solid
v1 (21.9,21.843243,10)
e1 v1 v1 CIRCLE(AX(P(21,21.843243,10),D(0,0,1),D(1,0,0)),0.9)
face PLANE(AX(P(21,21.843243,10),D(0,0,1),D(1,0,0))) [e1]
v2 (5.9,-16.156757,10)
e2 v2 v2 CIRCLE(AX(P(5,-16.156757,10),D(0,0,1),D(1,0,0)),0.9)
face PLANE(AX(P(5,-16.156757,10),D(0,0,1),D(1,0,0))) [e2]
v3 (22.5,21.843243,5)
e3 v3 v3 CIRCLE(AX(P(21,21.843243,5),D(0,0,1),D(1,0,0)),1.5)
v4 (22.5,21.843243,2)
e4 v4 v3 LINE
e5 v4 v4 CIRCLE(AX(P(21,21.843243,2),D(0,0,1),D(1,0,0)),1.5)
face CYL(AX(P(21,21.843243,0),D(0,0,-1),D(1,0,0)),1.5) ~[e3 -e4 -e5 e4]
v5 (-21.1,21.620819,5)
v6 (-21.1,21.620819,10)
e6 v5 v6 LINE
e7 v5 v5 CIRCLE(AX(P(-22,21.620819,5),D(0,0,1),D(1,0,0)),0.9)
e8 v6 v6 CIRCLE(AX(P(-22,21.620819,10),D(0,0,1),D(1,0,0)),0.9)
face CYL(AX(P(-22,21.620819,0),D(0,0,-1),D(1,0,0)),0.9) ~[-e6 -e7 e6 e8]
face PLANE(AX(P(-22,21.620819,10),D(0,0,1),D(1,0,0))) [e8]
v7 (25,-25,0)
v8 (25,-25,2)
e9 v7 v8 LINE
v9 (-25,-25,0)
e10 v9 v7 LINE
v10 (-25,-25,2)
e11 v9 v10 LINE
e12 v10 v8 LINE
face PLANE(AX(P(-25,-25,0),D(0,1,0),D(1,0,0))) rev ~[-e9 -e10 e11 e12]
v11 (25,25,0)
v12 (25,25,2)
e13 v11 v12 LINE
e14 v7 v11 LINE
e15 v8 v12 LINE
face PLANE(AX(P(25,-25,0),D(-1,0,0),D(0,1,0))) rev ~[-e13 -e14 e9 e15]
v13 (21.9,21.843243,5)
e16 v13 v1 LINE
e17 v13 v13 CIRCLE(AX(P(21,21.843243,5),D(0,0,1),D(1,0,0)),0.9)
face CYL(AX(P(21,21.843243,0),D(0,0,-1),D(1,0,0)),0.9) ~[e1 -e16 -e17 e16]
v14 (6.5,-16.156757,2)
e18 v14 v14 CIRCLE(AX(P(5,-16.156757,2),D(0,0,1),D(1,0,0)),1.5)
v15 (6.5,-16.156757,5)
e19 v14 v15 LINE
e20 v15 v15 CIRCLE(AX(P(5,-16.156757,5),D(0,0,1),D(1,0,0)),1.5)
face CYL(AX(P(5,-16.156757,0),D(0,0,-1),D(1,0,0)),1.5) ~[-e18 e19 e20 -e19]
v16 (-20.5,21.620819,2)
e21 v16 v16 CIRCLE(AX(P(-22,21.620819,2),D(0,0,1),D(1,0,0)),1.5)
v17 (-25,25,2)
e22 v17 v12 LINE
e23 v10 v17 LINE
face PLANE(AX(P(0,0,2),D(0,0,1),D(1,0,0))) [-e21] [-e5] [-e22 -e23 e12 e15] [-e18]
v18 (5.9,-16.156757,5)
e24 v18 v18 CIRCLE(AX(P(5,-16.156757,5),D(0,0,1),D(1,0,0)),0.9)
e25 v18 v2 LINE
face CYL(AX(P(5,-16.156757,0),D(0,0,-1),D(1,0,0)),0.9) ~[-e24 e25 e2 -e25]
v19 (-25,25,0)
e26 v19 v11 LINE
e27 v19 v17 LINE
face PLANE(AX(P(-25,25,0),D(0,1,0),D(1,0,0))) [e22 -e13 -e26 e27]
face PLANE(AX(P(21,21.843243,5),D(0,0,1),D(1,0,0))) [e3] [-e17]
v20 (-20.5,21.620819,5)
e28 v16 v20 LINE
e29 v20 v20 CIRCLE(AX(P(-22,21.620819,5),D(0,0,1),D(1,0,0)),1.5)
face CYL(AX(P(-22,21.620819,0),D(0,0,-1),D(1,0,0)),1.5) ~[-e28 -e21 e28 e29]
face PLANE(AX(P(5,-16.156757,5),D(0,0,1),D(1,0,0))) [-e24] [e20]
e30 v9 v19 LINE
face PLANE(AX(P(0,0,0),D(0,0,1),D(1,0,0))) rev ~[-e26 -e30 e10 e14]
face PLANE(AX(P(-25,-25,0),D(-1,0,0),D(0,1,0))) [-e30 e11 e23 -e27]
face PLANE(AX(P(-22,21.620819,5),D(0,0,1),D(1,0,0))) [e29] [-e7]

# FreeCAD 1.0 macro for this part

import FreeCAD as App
import Part
import Sketcher

V = App.Vector

doc = App.newDocument("Part")
body = doc.addObject("PartDesign::Body", "Body")

# Sketch on XY plane
sketch1 = body.newObject("Sketcher::SketchObject", "Sketch")
sketch1.AttachmentSupport = (doc.getObject("XY_Plane"), [""])
sketch1.MapMode = "FlatFace"
sketch1.addGeometry([
    Part.LineSegment(V(-25, 25, 0), V(-25, -25, 0)),  # 0
    Part.LineSegment(V(-25, -25, 0), V(25, -25, 0)),  # 1
    Part.LineSegment(V(25, -25, 0), V(25, 25, 0)),  # 2
    Part.LineSegment(V(25, 25, 0), V(-25, 25, 0)),  # 3
    Part.Circle(V(5, -16.2, 0), V(0, 0, 1), 1.5),  # 4
    Part.Circle(V(-22, 21.6, 0), V(0, 0, 1), 1.5),  # 5
    Part.Circle(V(21, 21.8, 0), V(0, 0, 1), 1.5),  # 6
], False)
sketch1.addConstraint([
    Sketcher.Constraint("Coincident", 0, 2, 1, 1),
    Sketcher.Constraint("Coincident", 1, 2, 2, 1),
    Sketcher.Constraint("Coincident", 2, 2, 3, 1),
    Sketcher.Constraint("Coincident", 3, 2, 0, 1),
    Sketcher.Constraint("Vertical", 0),
    Sketcher.Constraint("Horizontal", 1),
    Sketcher.Constraint("Vertical", 2),
    Sketcher.Constraint("Horizontal", 3),
    Sketcher.Constraint("Equal", 4, 5),
    Sketcher.Constraint("Equal", 5, 6),
    Sketcher.Constraint("Symmetric", 0, 2, 2, 2, -1, 1),
    Sketcher.Constraint("Equal", 3, 0),
    Sketcher.Constraint("Diameter", 4, 3.0),
    Sketcher.Constraint("DistanceX", 1, 1, 1, 2, 50.0),
    Sketcher.Constraint("DistanceX", -1, 1, 4, 3, 5.0),
    Sketcher.Constraint("DistanceX", 5, 3, -1, 1, 22.0),
    Sketcher.Constraint("DistanceX", -1, 1, 6, 3, 21.0),
    Sketcher.Constraint("DistanceY", 4, 3, 6, 3, 38.0),
    Sketcher.Constraint("DistanceY", -1, 1, 5, 3, 21.620819),
    Sketcher.Constraint("DistanceY", 4, 3, -1, 1, 16.156757),
])
pad1 = body.newObject("PartDesign::Pad", "Pad")
pad1.Profile = sketch1
pad1.Length = 2

# Sketch on XY plane
sketch2 = body.newObject("Sketcher::SketchObject", "Sketch001")
sketch2.AttachmentSupport = (doc.getObject("XY_Plane"), [""])
sketch2.MapMode = "FlatFace"
sketch2.addGeometry([
    Part.Circle(V(-22, 21.6, 0), V(0, 0, 1), 1.5),  # 0
    Part.Circle(V(-22, 21.6, 0), V(0, 0, 1), 0.9),  # 1
    Part.Circle(V(21, 21.8, 0), V(0, 0, 1), 1.5),  # 2
    Part.Circle(V(21, 21.8, 0), V(0, 0, 1), 0.9),  # 3
    Part.Circle(V(5, -16.2, 0), V(0, 0, 1), 1.5),  # 4
    Part.Circle(V(5, -16.2, 0), V(0, 0, 1), 0.9),  # 5
], False)
sketch2.addConstraint([
    Sketcher.Constraint("Coincident", 1, 3, 0, 3),
    Sketcher.Constraint("Coincident", 3, 3, 2, 3),
    Sketcher.Constraint("Coincident", 5, 3, 4, 3),
    Sketcher.Constraint("Equal", 0, 2),
    Sketcher.Constraint("Equal", 1, 3),
    Sketcher.Constraint("Equal", 2, 4),
    Sketcher.Constraint("Equal", 3, 5),
    Sketcher.Constraint("Diameter", 0, 3.0),
    Sketcher.Constraint("Diameter", 1, 1.8),
    Sketcher.Constraint("DistanceX", 0, 3, -1, 1, 22.0),
    Sketcher.Constraint("DistanceX", -1, 1, 2, 3, 21.0),
    Sketcher.Constraint("DistanceX", -1, 1, 4, 3, 5.0),
    Sketcher.Constraint("DistanceY", 4, 3, 2, 3, 38.0),
    Sketcher.Constraint("DistanceY", -1, 1, 0, 3, 21.620819),
    Sketcher.Constraint("DistanceY", -1, 1, 2, 3, 21.843243),
])
pad2 = body.newObject("PartDesign::Pad", "Pad001")
pad2.Profile = sketch2
pad2.Length = 5

# Sketch on XY plane
sketch3 = body.newObject("Sketcher::SketchObject", "Sketch002")
sketch3.AttachmentSupport = (doc.getObject("XY_Plane"), [""])
sketch3.MapMode = "FlatFace"
sketch3.addGeometry([
    Part.Circle(V(-22, 21.6, 0), V(0, 0, 1), 0.9),
    Part.Circle(V(21, 21.8, 0), V(0, 0, 1), 0.9),
    Part.Circle(V(5, -16.2, 0), V(0, 0, 1), 0.9),
], False)
sketch3.addConstraint([
    Sketcher.Constraint("Equal", 0, 1),
    Sketcher.Constraint("Equal", 1, 2),
    Sketcher.Constraint("Diameter", 0, 1.8),
    Sketcher.Constraint("DistanceX", 0, 3, -1, 1, 22.0),
    Sketcher.Constraint("DistanceX", -1, 1, 1, 3, 21.0),
    Sketcher.Constraint("DistanceX", -1, 1, 2, 3, 5.0),
    Sketcher.Constraint("DistanceY", 2, 3, 1, 3, 38.0),
    Sketcher.Constraint("DistanceY", -1, 1, 0, 3, 21.620819),
    Sketcher.Constraint("DistanceY", -1, 1, 1, 3, 21.843243),
])
pad3 = body.newObject("PartDesign::Pad", "Pad002")
pad3.Profile = sketch3
pad3.Length = 10

doc.recompute()
